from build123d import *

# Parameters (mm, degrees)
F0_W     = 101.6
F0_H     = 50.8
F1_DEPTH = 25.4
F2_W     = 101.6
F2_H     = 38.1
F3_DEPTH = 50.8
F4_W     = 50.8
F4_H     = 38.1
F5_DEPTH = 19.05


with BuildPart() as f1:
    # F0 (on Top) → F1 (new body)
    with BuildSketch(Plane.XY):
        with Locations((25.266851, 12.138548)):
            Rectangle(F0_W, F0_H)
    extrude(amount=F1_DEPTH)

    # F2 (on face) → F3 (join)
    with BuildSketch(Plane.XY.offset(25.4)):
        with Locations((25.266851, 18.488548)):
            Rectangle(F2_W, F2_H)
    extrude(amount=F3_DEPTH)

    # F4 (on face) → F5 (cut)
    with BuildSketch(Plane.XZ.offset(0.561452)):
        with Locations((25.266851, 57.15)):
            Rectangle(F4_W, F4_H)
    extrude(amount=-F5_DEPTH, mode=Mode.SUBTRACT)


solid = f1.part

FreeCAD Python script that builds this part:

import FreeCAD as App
import Part
import Sketcher
from FreeCAD import Vector
Q = App.Units.Quantity

doc = App.newDocument("Part")
body = doc.addObject("PartDesign::Body", "Body")

# Sketch on XY plane
sketch1 = body.newObject("Sketcher::SketchObject", "Sketch")
sketch1.AttachmentSupport = (doc.getObject("XY_Plane"), [""])
sketch1.MapMode = "FlatFace"
sketch1.addGeometry([
    Part.LineSegment(Vector(-26, 38, 0), Vector(-26, -13, 0)),
    Part.LineSegment(Vector(-26, -13, 0), Vector(76, -13, 0)),
    Part.LineSegment(Vector(76, -13, 0), Vector(76, 38, 0)),
    Part.LineSegment(Vector(76, 38, 0), Vector(-26, 38, 0)),
], False)
sketch1.addConstraint([
    Sketcher.Constraint("Coincident", 0, 2, 1, 1),
    Sketcher.Constraint("Coincident", 1, 2, 2, 1),
    Sketcher.Constraint("Coincident", 2, 2, 3, 1),
    Sketcher.Constraint("Coincident", 3, 2, 0, 1),
    Sketcher.Constraint("Vertical", 0),
    Sketcher.Constraint("Horizontal", 1),
    Sketcher.Constraint("Vertical", 2),
    Sketcher.Constraint("Horizontal", 3),
    Sketcher.Constraint("DistanceX", 1, 1, 1, 2, Q("4 in")),
    Sketcher.Constraint("DistanceY", 0, 2, 0, 1, Q("2 in")),
    Sketcher.Constraint("DistanceX", 0, 2, -1, 1, 25.533149),
    Sketcher.Constraint("DistanceY", 0, 2, -1, 1, 13.261452),
])
pad1 = body.newObject("PartDesign::Pad", "Pad")
pad1.Profile = sketch1
pad1.Length = Q("1 in")

# Sketch on XY plane
sketch2 = body.newObject("Sketcher::SketchObject", "Sketch001")
sketch2.AttachmentSupport = (doc.getObject("XY_Plane"), [""])
sketch2.MapMode = "FlatFace"
sketch2.AttachmentOffset = App.Placement(Vector(0, 0, 1 * 25.4), App.Rotation())
sketch2.addGeometry([
    Part.LineSegment(Vector(-26, 38, 0), Vector(-26, -1, 0)),
    Part.LineSegment(Vector(-26, -1, 0), Vector(76, -1, 0)),
    Part.LineSegment(Vector(76, -1, 0), Vector(76, 38, 0)),
    Part.LineSegment(Vector(76, 38, 0), Vector(-26, 38, 0)),
], False)
sketch2.addConstraint([
    Sketcher.Constraint("Coincident", 0, 2, 1, 1),
    Sketcher.Constraint("Coincident", 1, 2, 2, 1),
    Sketcher.Constraint("Coincident", 2, 2, 3, 1),
    Sketcher.Constraint("Coincident", 3, 2, 0, 1),
    Sketcher.Constraint("Vertical", 0),
    Sketcher.Constraint("Horizontal", 1),
    Sketcher.Constraint("Vertical", 2),
    Sketcher.Constraint("Horizontal", 3),
    Sketcher.Constraint("DistanceX", 1, 1, 1, 2, Q("4 in")),
    Sketcher.Constraint("DistanceY", 0, 2, 0, 1, Q("1.5 in")),
    Sketcher.Constraint("DistanceX", 0, 2, -1, 1, 25.533149),
    Sketcher.Constraint("DistanceY", 0, 2, -1, 1, 0.561452),
])
pad2 = body.newObject("PartDesign::Pad", "Pad001")
pad2.Profile = sketch2
pad2.Length = Q("2 in")

# Sketch on XZ plane
sketch3 = body.newObject("Sketcher::SketchObject", "Sketch002")
sketch3.AttachmentSupport = (doc.getObject("XZ_Plane"), [""])
sketch3.MapMode = "FlatFace"
sketch3.AttachmentOffset = App.Placement(Vector(0, 0, 0.561452), App.Rotation())
sketch3.addGeometry([
    Part.LineSegment(Vector(0, 76, 0), Vector(0, 38, 0)),
    Part.LineSegment(Vector(0, 38, 0), Vector(51, 38, 0)),
    Part.LineSegment(Vector(51, 38, 0), Vector(51, 76, 0)),
    Part.LineSegment(Vector(51, 76, 0), Vector(0, 76, 0)),
], False)
sketch3.addConstraint([
    Sketcher.Constraint("Coincident", 0, 2, 1, 1),
    Sketcher.Constraint("Coincident", 1, 2, 2, 1),
    Sketcher.Constraint("Coincident", 2, 2, 3, 1),
    Sketcher.Constraint("Coincident", 3, 2, 0, 1),
    Sketcher.Constraint("Vertical", 0),
    Sketcher.Constraint("Horizontal", 1),
    Sketcher.Constraint("Vertical", 2),
    Sketcher.Constraint("Horizontal", 3),
    Sketcher.Constraint("DistanceX", 1, 1, 1, 2, Q("2 in")),
    Sketcher.Constraint("DistanceY", 0, 2, 0, 1, Q("1.5 in")),
    Sketcher.Constraint("DistanceY", -1, 1, 2, 2, Q("3 in")),
    Sketcher.Constraint("DistanceX", 0, 2, -1, 1, 0.133149),
])
pocket1 = body.newObject("PartDesign::Pocket", "Pocket")
pocket1.Profile = sketch3
pocket1.Length = Q("0.75 in")

doc.recompute()
